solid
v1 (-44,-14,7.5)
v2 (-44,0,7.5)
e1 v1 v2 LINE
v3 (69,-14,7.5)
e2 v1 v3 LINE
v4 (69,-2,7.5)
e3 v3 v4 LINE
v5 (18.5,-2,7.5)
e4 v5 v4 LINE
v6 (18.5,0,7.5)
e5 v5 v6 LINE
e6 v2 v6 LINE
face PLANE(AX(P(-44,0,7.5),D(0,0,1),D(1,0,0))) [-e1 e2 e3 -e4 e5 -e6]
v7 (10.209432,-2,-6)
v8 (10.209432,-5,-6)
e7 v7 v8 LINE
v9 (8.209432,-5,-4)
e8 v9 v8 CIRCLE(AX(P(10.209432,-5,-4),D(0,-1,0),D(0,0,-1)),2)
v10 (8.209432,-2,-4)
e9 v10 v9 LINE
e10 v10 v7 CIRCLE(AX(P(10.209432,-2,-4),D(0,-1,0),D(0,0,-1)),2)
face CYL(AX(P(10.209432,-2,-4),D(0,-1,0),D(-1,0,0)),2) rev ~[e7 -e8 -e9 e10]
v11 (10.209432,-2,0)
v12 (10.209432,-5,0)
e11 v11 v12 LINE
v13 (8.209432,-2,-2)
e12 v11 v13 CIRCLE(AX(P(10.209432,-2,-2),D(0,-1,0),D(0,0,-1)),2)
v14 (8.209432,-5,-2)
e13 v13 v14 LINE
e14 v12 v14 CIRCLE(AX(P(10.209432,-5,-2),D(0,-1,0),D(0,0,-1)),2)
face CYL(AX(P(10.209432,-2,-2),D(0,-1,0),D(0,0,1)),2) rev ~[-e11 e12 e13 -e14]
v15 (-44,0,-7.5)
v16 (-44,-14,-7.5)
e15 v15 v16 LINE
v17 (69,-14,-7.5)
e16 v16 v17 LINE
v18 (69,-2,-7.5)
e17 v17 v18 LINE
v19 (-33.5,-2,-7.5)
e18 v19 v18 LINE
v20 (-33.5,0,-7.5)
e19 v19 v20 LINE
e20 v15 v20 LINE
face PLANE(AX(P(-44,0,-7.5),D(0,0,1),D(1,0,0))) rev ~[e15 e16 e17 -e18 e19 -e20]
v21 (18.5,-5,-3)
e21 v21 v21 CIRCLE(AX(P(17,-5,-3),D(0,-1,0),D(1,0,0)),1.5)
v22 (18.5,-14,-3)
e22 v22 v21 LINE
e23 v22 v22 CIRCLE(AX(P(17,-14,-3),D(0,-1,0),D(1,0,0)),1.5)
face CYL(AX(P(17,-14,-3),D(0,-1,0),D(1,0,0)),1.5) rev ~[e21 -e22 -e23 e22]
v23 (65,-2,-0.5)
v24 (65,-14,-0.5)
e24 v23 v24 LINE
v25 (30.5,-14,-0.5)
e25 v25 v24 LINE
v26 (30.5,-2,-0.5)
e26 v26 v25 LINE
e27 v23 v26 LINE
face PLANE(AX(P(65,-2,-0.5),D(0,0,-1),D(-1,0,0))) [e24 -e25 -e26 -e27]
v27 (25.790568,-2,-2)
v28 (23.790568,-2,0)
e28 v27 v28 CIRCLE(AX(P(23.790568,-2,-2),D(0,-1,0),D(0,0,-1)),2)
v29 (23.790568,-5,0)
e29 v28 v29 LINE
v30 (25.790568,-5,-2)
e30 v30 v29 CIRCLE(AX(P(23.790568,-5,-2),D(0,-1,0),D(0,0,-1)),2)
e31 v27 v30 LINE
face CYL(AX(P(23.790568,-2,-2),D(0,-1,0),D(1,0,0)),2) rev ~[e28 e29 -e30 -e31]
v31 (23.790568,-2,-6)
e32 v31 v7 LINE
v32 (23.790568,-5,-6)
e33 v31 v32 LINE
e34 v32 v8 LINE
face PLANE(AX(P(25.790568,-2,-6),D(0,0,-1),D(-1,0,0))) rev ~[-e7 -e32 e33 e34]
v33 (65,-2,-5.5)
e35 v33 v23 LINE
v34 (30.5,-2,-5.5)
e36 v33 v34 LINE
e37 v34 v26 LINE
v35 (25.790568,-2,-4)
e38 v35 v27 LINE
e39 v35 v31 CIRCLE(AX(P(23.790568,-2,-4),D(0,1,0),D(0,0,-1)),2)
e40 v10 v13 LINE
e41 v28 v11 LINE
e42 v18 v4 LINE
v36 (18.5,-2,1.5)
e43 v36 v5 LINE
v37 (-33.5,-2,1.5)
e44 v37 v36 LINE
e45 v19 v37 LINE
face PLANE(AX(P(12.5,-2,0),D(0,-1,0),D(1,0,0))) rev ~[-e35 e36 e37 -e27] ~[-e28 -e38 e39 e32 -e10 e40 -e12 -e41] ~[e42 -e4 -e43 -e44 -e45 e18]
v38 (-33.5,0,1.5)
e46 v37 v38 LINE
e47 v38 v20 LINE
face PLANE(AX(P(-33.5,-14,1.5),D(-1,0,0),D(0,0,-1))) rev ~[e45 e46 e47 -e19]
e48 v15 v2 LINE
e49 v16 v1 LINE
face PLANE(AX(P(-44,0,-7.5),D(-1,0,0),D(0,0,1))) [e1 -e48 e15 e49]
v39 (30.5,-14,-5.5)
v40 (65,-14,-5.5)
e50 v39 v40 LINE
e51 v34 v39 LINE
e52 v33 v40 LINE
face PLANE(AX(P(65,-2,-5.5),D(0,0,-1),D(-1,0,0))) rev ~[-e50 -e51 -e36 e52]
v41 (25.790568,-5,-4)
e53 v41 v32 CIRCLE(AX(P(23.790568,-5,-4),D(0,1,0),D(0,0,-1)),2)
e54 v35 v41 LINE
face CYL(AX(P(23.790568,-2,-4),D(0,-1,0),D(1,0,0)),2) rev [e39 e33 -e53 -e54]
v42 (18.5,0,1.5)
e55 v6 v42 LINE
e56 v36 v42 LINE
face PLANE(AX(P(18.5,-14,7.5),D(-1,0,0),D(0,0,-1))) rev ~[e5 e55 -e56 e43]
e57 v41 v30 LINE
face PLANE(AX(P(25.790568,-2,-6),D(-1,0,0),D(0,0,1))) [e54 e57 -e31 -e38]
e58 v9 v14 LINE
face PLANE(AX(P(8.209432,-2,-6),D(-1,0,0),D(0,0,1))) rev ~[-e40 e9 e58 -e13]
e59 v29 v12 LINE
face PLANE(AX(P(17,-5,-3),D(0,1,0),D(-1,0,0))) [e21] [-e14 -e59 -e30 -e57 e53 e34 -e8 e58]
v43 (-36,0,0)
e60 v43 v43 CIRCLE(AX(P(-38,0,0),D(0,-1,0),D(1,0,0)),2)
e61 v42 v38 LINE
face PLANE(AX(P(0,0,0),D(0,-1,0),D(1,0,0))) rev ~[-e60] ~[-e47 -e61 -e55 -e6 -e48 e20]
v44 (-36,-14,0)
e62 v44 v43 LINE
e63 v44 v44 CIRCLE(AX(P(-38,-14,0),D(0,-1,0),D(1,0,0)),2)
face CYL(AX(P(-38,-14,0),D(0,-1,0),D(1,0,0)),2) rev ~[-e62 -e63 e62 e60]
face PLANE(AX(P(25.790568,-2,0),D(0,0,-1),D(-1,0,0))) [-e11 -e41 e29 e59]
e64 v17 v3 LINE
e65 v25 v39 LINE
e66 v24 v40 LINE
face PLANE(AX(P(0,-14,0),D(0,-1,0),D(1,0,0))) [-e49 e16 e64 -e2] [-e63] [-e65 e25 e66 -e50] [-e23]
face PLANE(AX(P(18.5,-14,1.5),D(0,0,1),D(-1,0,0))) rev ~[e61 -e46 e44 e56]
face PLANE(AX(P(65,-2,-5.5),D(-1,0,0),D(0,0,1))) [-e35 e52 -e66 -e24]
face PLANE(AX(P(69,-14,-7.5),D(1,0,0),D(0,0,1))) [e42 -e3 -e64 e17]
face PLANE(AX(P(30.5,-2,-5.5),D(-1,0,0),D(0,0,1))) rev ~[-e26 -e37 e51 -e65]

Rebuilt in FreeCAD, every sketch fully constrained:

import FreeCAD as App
import Part
import Sketcher
Q = App.Units.Quantity


def edges_at(feature, points):
    """Names of the edges that pass closest to the given points."""
    edges = feature.Shape.Edges
    near = lambda p: min(range(len(edges)), key=lambda i: edges[i].distToShape(Part.Vertex(*p))[0])
    return sorted({f"Edge{near(p) + 1}" for p in points})

doc = App.newDocument("Part")
body = doc.addObject("PartDesign::Body", "Body")

# Sketch on XZ plane
sketch1 = doc.addObject("Sketcher::SketchObject", "Sketch")
body.addObject(sketch1)
sketch1.AttachmentSupport = (doc.XZ_Plane, [""])
sketch1.MapMode = "FlatFace"
sketch1.addGeometry(Part.LineSegment(App.Vector(-44, 8, 0), App.Vector(-44, -8, 0)), False)
sketch1.addGeometry(Part.LineSegment(App.Vector(-44, -8, 0), App.Vector(44, -8, 0)), False)
sketch1.addGeometry(Part.LineSegment(App.Vector(44, -8, 0), App.Vector(44, 8, 0)), False)
sketch1.addGeometry(Part.LineSegment(App.Vector(44, 8, 0), App.Vector(-44, 8, 0)), False)
sketch1.addConstraint(Sketcher.Constraint("Coincident", 0, 2, 1, 1))
sketch1.addConstraint(Sketcher.Constraint("Coincident", 1, 2, 2, 1))
sketch1.addConstraint(Sketcher.Constraint("Coincident", 2, 2, 3, 1))
sketch1.addConstraint(Sketcher.Constraint("Coincident", 3, 2, 0, 1))
sketch1.addConstraint(Sketcher.Constraint("Vertical", 0))
sketch1.addConstraint(Sketcher.Constraint("Horizontal", 1))
sketch1.addConstraint(Sketcher.Constraint("Vertical", 2))
sketch1.addConstraint(Sketcher.Constraint("Horizontal", 3))
sketch1.addConstraint(Sketcher.Constraint("Symmetric", 0, 2, 2, 2, -1, 1))
sketch1.addConstraint(Sketcher.Constraint("DistanceX", 1, 1, 1, 2, Q("88 mm")))
sketch1.addConstraint(Sketcher.Constraint("DistanceY", 0, 2, 0, 1, Q("15 mm")))
pad1 = doc.addObject("PartDesign::Pad", "Pad")
body.addObject(pad1)
pad1.Profile = sketch1
pad1.Length = 14

# Sketch on XZ plane
sketch2 = doc.addObject("Sketcher::SketchObject", "Sketch001")
body.addObject(sketch2)
sketch2.AttachmentSupport = (doc.XZ_Plane, [""])
sketch2.MapMode = "FlatFace"
sketch2.AttachmentOffset = App.Placement(App.Vector(0, 0, 14), App.Rotation())
sketch2.addGeometry(Part.LineSegment(App.Vector(-34, 2, 0), App.Vector(-34, -8, 0)), False)
sketch2.addGeometry(Part.LineSegment(App.Vector(-34, -8, 0), App.Vector(44, -8, 0)), False)
sketch2.addGeometry(Part.LineSegment(App.Vector(44, -8, 0), App.Vector(44, 8, 0)), False)
sketch2.addGeometry(Part.LineSegment(App.Vector(44, 8, 0), App.Vector(18, 8, 0)), False)
sketch2.addGeometry(Part.LineSegment(App.Vector(18, 8, 0), App.Vector(18, 2, 0)), False)
sketch2.addGeometry(Part.LineSegment(App.Vector(18, 2, 0), App.Vector(-34, 2, 0)), False)
sketch2.addConstraint(Sketcher.Constraint("Coincident", 0, 2, 1, 1))
sketch2.addConstraint(Sketcher.Constraint("Coincident", 1, 2, 2, 1))
sketch2.addConstraint(Sketcher.Constraint("Coincident", 2, 2, 3, 1))
sketch2.addConstraint(Sketcher.Constraint("Coincident", 3, 2, 4, 1))
sketch2.addConstraint(Sketcher.Constraint("Coincident", 4, 2, 5, 1))
sketch2.addConstraint(Sketcher.Constraint("Coincident", 5, 2, 0, 1))
sketch2.addConstraint(Sketcher.Constraint("Vertical", 0))
sketch2.addConstraint(Sketcher.Constraint("Horizontal", 1))
sketch2.addConstraint(Sketcher.Constraint("Vertical", 2))
sketch2.addConstraint(Sketcher.Constraint("Horizontal", 3))
sketch2.addConstraint(Sketcher.Constraint("Vertical", 4))
sketch2.addConstraint(Sketcher.Constraint("Horizontal", 5))
sketch2.addConstraint(Sketcher.Constraint("DistanceX", 5, 2, 5, 1, Q("52 mm")))
sketch2.addConstraint(Sketcher.Constraint("DistanceY", 0, 2, 0, 1, Q("9 mm")))
sketch2.addConstraint(Sketcher.Constraint("DistanceY", 2, 1, 2, 2, Q("15 mm")))
sketch2.addConstraint(Sketcher.Constraint("DistanceX", 1, 1, 1, 2, Q("77.5 mm")))
sketch2.addConstraint(Sketcher.Constraint("DistanceX", -1, 1, 1, 2, Q("44 mm")))
sketch2.addConstraint(Sketcher.Constraint("DistanceY", 0, 2, -1, 1, Q("7.5 mm")))
pocket1 = doc.addObject("PartDesign::Pocket", "Pocket")
body.addObject(pocket1)
pocket1.Profile = sketch2
pocket1.Length = 24.5

# Sketch on XZ plane
sketch3 = doc.addObject("Sketcher::SketchObject", "Sketch002")
body.addObject(sketch3)
sketch3.AttachmentSupport = (doc.XZ_Plane, [""])
sketch3.MapMode = "FlatFace"
sketch3.AttachmentOffset = App.Placement(App.Vector(0, 0, 14), App.Rotation())
sketch3.addGeometry(Part.LineSegment(App.Vector(-44, 8, 0), App.Vector(-44, -8, 0)), False)
sketch3.addGeometry(Part.LineSegment(App.Vector(-44, -8, 0), App.Vector(69, -8, 0)), False)
sketch3.addGeometry(Part.LineSegment(App.Vector(69, -8, 0), App.Vector(69, 8, 0)), False)
sketch3.addGeometry(Part.LineSegment(App.Vector(69, 8, 0), App.Vector(-44, 8, 0)), False)
sketch3.addConstraint(Sketcher.Constraint("Coincident", 0, 2, 1, 1))
sketch3.addConstraint(Sketcher.Constraint("Coincident", 1, 2, 2, 1))
sketch3.addConstraint(Sketcher.Constraint("Coincident", 2, 2, 3, 1))
sketch3.addConstraint(Sketcher.Constraint("Coincident", 3, 2, 0, 1))
sketch3.addConstraint(Sketcher.Constraint("Vertical", 0))
sketch3.addConstraint(Sketcher.Constraint("Horizontal", 1))
sketch3.addConstraint(Sketcher.Constraint("Vertical", 2))
sketch3.addConstraint(Sketcher.Constraint("Horizontal", 3))
sketch3.addConstraint(Sketcher.Constraint("DistanceX", 1, 1, 1, 2, Q("113 mm")))
sketch3.addConstraint(Sketcher.Constraint("DistanceY", 0, 2, 0, 1, Q("15 mm")))
sketch3.addConstraint(Sketcher.Constraint("DistanceX", 0, 2, -1, 1, Q("44 mm")))
sketch3.addConstraint(Sketcher.Constraint("DistanceY", 0, 2, -1, 1, Q("7.5 mm")))
pad2 = doc.addObject("PartDesign::Pad", "Pad001")
body.addObject(pad2)
pad2.Profile = sketch3
pad2.Length = 12
pad2.Reversed = True

# Sketch on XZ plane
sketch4 = doc.addObject("Sketcher::SketchObject", "Sketch003")
body.addObject(sketch4)
sketch4.AttachmentSupport = (doc.XZ_Plane, [""])
sketch4.MapMode = "FlatFace"
sketch4.AttachmentOffset = App.Placement(App.Vector(0, 0, 2), App.Rotation())
sketch4.addGeometry(Part.LineSegment(App.Vector(65, 0, 0), App.Vector(65, -6, 0)), False)
sketch4.addGeometry(Part.LineSegment(App.Vector(65, -6, 0), App.Vector(30, -6, 0)), False)
sketch4.addGeometry(Part.LineSegment(App.Vector(30, -6, 0), App.Vector(30, 0, 0)), False)
sketch4.addGeometry(Part.LineSegment(App.Vector(30, 0, 0), App.Vector(65, 0, 0)), False)
sketch4.addConstraint(Sketcher.Constraint("Coincident", 0, 2, 1, 1))
sketch4.addConstraint(Sketcher.Constraint("Coincident", 1, 2, 2, 1))
sketch4.addConstraint(Sketcher.Constraint("Coincident", 2, 2, 3, 1))
sketch4.addConstraint(Sketcher.Constraint("Coincident", 3, 2, 0, 1))
sketch4.addConstraint(Sketcher.Constraint("Vertical", 0))
sketch4.addConstraint(Sketcher.Constraint("Horizontal", 1))
sketch4.addConstraint(Sketcher.Constraint("Vertical", 2))
sketch4.addConstraint(Sketcher.Constraint("Horizontal", 3))
sketch4.addConstraint(Sketcher.Constraint("DistanceY", 0, 2, 0, 1, Q("5 mm")))
sketch4.addConstraint(Sketcher.Constraint("DistanceX", 1, 2, 1, 1, Q("34.5 mm")))
sketch4.addConstraint(Sketcher.Constraint("DistanceX", -1, 1, 0, 2, Q("65 mm")))
sketch4.addConstraint(Sketcher.Constraint("DistanceY", 0, 2, -1, 1, Q("5.5 mm")))
pocket2 = doc.addObject("PartDesign::Pocket", "Pocket001")
body.addObject(pocket2)
pocket2.Profile = sketch4
pocket2.Length = 25
pocket2.Reversed = True

# Sketch on XZ plane
sketch5 = doc.addObject("Sketcher::SketchObject", "Sketch004")
body.addObject(sketch5)
sketch5.AttachmentSupport = (doc.XZ_Plane, [""])
sketch5.MapMode = "FlatFace"
sketch5.AttachmentOffset = App.Placement(App.Vector(0, 0, 14), App.Rotation())
sketch5.addGeometry(Part.Circle(App.Vector(17, -3, 0), App.Vector(0, 0, 1), 1.5), False)
sketch5.addConstraint(Sketcher.Constraint("Diameter", 0, Q("3 mm")))
sketch5.addConstraint(Sketcher.Constraint("DistanceX", -1, 1, 0, 3, Q("17 mm")))
sketch5.addConstraint(Sketcher.Constraint("DistanceY", 0, 3, -1, 1, Q("3 mm")))
pocket3 = doc.addObject("PartDesign::Pocket", "Pocket002")
body.addObject(pocket3)
pocket3.Profile = sketch5
pocket3.Length = 25

# Sketch on XZ plane
sketch6 = doc.addObject("Sketcher::SketchObject", "Sketch005")
body.addObject(sketch6)
sketch6.AttachmentSupport = (doc.XZ_Plane, [""])
sketch6.MapMode = "FlatFace"
sketch6.AttachmentOffset = App.Placement(App.Vector(0, 0, 2), App.Rotation())
sketch6.addGeometry(Part.LineSegment(App.Vector(26, 0, 0), App.Vector(26, -6, 0)), False)
sketch6.addGeometry(Part.LineSegment(App.Vector(26, -6, 0), App.Vector(8, -6, 0)), False)
sketch6.addGeometry(Part.LineSegment(App.Vector(8, -6, 0), App.Vector(8, 0, 0)), False)
sketch6.addGeometry(Part.LineSegment(App.Vector(8, 0, 0), App.Vector(26, 0, 0)), False)
sketch6.addConstraint(Sketcher.Constraint("Coincident", 0, 2, 1, 1))
sketch6.addConstraint(Sketcher.Constraint("Coincident", 1, 2, 2, 1))
sketch6.addConstraint(Sketcher.Constraint("Coincident", 2, 2, 3, 1))
sketch6.addConstraint(Sketcher.Constraint("Coincident", 3, 2, 0, 1))
sketch6.addConstraint(Sketcher.Constraint("Vertical", 0))
sketch6.addConstraint(Sketcher.Constraint("Horizontal", 1))
sketch6.addConstraint(Sketcher.Constraint("Vertical", 2))
sketch6.addConstraint(Sketcher.Constraint("Horizontal", 3))
sketch6.addConstraint(Sketcher.Constraint("PointOnObject", 2, 2, -1))
sketch6.addConstraint(Sketcher.Constraint("DistanceY", 0, 2, 0, 1, Q("6 mm")))
sketch6.addConstraint(Sketcher.Constraint("DistanceX", 1, 2, 1, 1, Q("17.581136 mm")))
sketch6.addConstraint(Sketcher.Constraint("DistanceX", -1, 1, 0, 2, Q("25.790568 mm")))
pocket4 = doc.addObject("PartDesign::Pocket", "Pocket003")
body.addObject(pocket4)
pocket4.Profile = sketch6
pocket4.Length = 3
pocket4.Reversed = True
doc.recompute()

fillet = doc.addObject("PartDesign::Fillet", "Fillet")
body.addObject(fillet)
fillet.Base = (pocket4, edges_at(pocket4, [
    (8.209, -3.5, 0),
    (8.209, -3.5, -6),
    (25.791, -3.5, 0),
    (25.791, -3.5, -6),
]))
fillet.Radius = 2

# Sketch on XZ plane
sketch7 = doc.addObject("Sketcher::SketchObject", "Sketch006")
body.addObject(sketch7)
sketch7.AttachmentSupport = (doc.XZ_Plane, [""])
sketch7.MapMode = "FlatFace"
sketch7.AttachmentOffset = App.Placement(App.Vector(0, 0, 14), App.Rotation())
sketch7.addGeometry(Part.Circle(App.Vector(-38, 0, 0), App.Vector(0, 0, 1), 2), False)
sketch7.addConstraint(Sketcher.Constraint("PointOnObject", 0, 3, -1))
sketch7.addConstraint(Sketcher.Constraint("Diameter", 0, Q("4 mm")))
sketch7.addConstraint(Sketcher.Constraint("DistanceX", 0, 3, -1, 1, Q("38 mm")))
pocket5 = doc.addObject("PartDesign::Pocket", "Pocket004")
body.addObject(pocket5)
pocket5.Profile = sketch7
pocket5.Length = 25

doc.recompute()
